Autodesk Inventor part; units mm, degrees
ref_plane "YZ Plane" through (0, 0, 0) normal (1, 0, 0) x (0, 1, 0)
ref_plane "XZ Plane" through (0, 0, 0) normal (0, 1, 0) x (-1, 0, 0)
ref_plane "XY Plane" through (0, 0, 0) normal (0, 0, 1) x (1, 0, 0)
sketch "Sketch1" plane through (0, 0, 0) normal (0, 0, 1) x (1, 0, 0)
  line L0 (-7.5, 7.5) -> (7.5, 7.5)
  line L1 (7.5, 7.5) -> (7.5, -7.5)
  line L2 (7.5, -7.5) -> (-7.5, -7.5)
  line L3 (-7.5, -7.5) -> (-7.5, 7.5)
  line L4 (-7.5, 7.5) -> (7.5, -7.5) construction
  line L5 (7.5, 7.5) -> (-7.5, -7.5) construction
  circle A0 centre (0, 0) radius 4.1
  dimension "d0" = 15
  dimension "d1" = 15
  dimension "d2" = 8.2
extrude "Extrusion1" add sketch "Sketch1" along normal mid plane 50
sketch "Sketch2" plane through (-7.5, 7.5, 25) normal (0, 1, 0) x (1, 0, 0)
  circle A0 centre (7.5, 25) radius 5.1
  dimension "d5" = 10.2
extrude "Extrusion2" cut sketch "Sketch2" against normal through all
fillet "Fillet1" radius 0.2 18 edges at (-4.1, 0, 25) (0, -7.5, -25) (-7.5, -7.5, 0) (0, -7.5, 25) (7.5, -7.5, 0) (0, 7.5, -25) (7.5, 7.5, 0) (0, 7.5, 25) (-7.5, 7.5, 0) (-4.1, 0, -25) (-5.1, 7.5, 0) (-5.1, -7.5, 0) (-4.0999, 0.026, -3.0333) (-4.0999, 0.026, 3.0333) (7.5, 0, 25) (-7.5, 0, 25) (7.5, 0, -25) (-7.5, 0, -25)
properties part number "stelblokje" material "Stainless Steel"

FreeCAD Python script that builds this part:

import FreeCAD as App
import Part
import Sketcher

V = App.Vector
Q = App.Units.Quantity

doc = App.newDocument("Part")
params = doc.addObject("Spreadsheet::Sheet", "Params")
for row, (alias, value) in enumerate([
    ("sketch1_diameter", "8.2 mm"),
    ("sketch1_width", "15 mm"),
    ("pad1_length", "50 mm"),
    ("sketch2_diameter", "10.2 mm"),
    ("fillet_radius", "0.2 mm"),
], start=1):
    params.set(f"A{row}", alias)
    params.set(f"B{row}", "=" + value)
    params.setAlias(f"B{row}", alias)

body = doc.addObject("PartDesign::Body", "Body")

sketch1 = body.newObject("Sketcher::SketchObject", "Sketch")
sketch1.AttachmentSupport = (doc.getObject("XY_Plane"), [""])
sketch1.MapMode = "FlatFace"
sketch1.addGeometry([
    Part.LineSegment(V(7.5, 7.5, 0), V(-7.5, 7.5, 0)),
    Part.LineSegment(V(-7.5, 7.5, 0), V(-7.5, -7.5, 0)),
    Part.LineSegment(V(-7.5, -7.5, 0), V(7.5, -7.5, 0)),
    Part.LineSegment(V(7.5, -7.5, 0), V(7.5, 7.5, 0)),
    Part.Circle(V(0, 0, 0), V(0, 0, 1), 4.1),
], False)
sketch1.addConstraint([
    Sketcher.Constraint("Coincident", 0, 2, 1, 1),
    Sketcher.Constraint("Coincident", 1, 2, 2, 1),
    Sketcher.Constraint("Coincident", 2, 2, 3, 1),
    Sketcher.Constraint("Coincident", 3, 2, 0, 1),
    Sketcher.Constraint("Horizontal", 0),
    Sketcher.Constraint("Vertical", 1),
    Sketcher.Constraint("Horizontal", 2),
    Sketcher.Constraint("Vertical", 3),
    Sketcher.Constraint("Coincident", 4, 3, -1, 1),
    Sketcher.Constraint("Symmetric", 0, 2, 2, 2, -1, 1),
    Sketcher.Constraint("Equal", 2, 1),
    Sketcher.Constraint("Diameter", 4, Q("8.2 mm")),
    Sketcher.Constraint("DistanceX", 0, 2, 0, 1, Q("15 mm")),
])
sketch1.setExpression("Constraints[11]", "Params.sketch1_diameter")
sketch1.setExpression("Constraints[12]", "Params.sketch1_width")
pad1 = body.newObject("PartDesign::Pad", "Pad")
pad1.Profile = sketch1
pad1.setExpression("Length", "Params.pad1_length")
pad1.Midplane = True

sketch2 = body.newObject("Sketcher::SketchObject", "Sketch001")
sketch2.AttachmentSupport = (doc.getObject("XZ_Plane"), [""])
sketch2.MapMode = "FlatFace"
sketch2.AttachmentOffset = App.Placement(V(0, 0, -7.5), App.Rotation())
sketch2.addGeometry(Part.Circle(V(0, 0, 0), V(0, 0, 1), 5.1), False)
sketch2.addConstraint([
    Sketcher.Constraint("Coincident", 0, 3, -1, 1),
    Sketcher.Constraint("Diameter", 0, Q("10.2 mm")),
])
sketch2.setExpression("Constraints[1]", "Params.sketch2_diameter")
pocket1 = body.newObject("PartDesign::Pocket", "Pocket")
pocket1.Profile = sketch2
pocket1.Type = "ThroughAll"
pocket1.Reversed = True
doc.recompute()

fillet = body.newObject("PartDesign::Fillet", "Fillet")
fillet.Base = (pocket1, ["Edge1"])
fillet.UseAllEdges = True
fillet.setExpression("Radius", "Params.fillet_radius")

doc.recompute()
